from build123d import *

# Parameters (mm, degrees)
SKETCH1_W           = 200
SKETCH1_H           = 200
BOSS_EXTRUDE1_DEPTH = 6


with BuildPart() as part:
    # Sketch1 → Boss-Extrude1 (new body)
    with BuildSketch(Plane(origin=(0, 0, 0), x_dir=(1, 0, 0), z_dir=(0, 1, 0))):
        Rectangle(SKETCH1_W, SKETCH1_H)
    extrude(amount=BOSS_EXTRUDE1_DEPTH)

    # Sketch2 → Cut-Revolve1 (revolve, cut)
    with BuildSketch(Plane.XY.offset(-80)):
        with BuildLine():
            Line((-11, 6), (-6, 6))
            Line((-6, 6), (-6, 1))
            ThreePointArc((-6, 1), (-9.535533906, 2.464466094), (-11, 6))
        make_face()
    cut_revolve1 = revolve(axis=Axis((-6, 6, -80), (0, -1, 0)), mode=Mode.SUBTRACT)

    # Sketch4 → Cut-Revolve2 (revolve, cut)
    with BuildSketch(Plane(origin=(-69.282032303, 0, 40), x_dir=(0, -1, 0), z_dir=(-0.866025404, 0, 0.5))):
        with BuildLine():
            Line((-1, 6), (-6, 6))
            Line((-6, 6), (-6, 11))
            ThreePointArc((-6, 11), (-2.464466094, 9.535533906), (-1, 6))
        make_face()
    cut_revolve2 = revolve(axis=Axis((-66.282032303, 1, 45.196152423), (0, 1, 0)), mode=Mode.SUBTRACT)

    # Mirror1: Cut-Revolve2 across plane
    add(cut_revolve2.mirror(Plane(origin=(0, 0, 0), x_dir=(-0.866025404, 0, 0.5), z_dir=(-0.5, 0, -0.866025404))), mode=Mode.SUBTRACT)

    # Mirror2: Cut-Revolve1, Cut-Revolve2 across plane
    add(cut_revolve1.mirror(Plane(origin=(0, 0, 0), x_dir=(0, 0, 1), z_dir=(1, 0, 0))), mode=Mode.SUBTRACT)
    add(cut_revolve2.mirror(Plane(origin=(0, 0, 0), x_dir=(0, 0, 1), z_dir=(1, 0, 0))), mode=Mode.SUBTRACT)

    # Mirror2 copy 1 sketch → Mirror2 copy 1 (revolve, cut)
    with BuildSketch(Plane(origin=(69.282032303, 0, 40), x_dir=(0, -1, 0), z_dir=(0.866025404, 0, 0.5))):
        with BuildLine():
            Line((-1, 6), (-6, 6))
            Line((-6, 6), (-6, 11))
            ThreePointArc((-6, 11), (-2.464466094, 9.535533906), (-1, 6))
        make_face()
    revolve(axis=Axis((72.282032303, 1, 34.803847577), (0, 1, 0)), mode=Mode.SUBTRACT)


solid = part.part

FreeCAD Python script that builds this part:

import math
import FreeCAD as App
import Part
import Sketcher
Q = App.Units.Quantity

doc = App.newDocument("Part")
body = doc.addObject("PartDesign::Body", "Body")

# Sketch on XZ plane
sketch1 = body.newObject("Sketcher::SketchObject", "Sketch")
sketch1.AttachmentSupport = (doc.getObject("XZ_Plane"), [""])
sketch1.MapMode = "FlatFace"
sketch1.addGeometry(Part.LineSegment(App.Vector(-100, -100, 0), App.Vector(-100, 100, 0)), False)
sketch1.addGeometry(Part.LineSegment(App.Vector(-100, 100, 0), App.Vector(100, 100, 0)), False)
sketch1.addGeometry(Part.LineSegment(App.Vector(100, 100, 0), App.Vector(100, -100, 0)), False)
sketch1.addGeometry(Part.LineSegment(App.Vector(100, -100, 0), App.Vector(-100, -100, 0)), False)
sketch1.addConstraint(Sketcher.Constraint("Coincident", 0, 2, 1, 1))
sketch1.addConstraint(Sketcher.Constraint("Coincident", 1, 2, 2, 1))
sketch1.addConstraint(Sketcher.Constraint("Coincident", 2, 2, 3, 1))
sketch1.addConstraint(Sketcher.Constraint("Coincident", 3, 2, 0, 1))
sketch1.addConstraint(Sketcher.Constraint("Vertical", 0))
sketch1.addConstraint(Sketcher.Constraint("Horizontal", 1))
sketch1.addConstraint(Sketcher.Constraint("Vertical", 2))
sketch1.addConstraint(Sketcher.Constraint("Horizontal", 3))
sketch1.addConstraint(Sketcher.Constraint("Symmetric", 0, 2, 2, 2, -1, 1))
sketch1.addConstraint(Sketcher.Constraint("Equal", 3, 0))
sketch1.addConstraint(Sketcher.Constraint("DistanceX", 1, 1, 1, 2, Q("200 mm")))
pad1 = body.newObject("PartDesign::Pad", "Pad")
pad1.Profile = sketch1
pad1.Length = 6
pad1.Reversed = True

# Sketch on XY plane
sketch2 = body.newObject("Sketcher::SketchObject", "Sketch001")
sketch2.AttachmentSupport = (doc.getObject("XY_Plane"), [""])
sketch2.MapMode = "FlatFace"
sketch2.AttachmentOffset = App.Placement(App.Vector(0, 0, -80), App.Rotation())
sketch2.addGeometry(Part.LineSegment(App.Vector(-6, 6, 0), App.Vector(-11, 6, 0)), False)
sketch2.addGeometry(Part.ArcOfCircle(Part.Circle(App.Vector(-6, 6, 0), App.Vector(0, 0, 1), 5), math.radians(180), math.radians(270)), False)
sketch2.addGeometry(Part.LineSegment(App.Vector(-6, 1, 0), App.Vector(-6, 6, 0)), False)
sketch2.addGeometry(Part.LineSegment(App.Vector(-6, 6, 0), App.Vector(-6, 1, 0)), True)  # axis
sketch2.addConstraint(Sketcher.Constraint("Coincident", 0, 2, 1, 1))
sketch2.addConstraint(Sketcher.Constraint("Coincident", 1, 2, 2, 1))
sketch2.addConstraint(Sketcher.Constraint("Coincident", 2, 2, 0, 1))
sketch2.addConstraint(Sketcher.Constraint("Horizontal", 0))
sketch2.addConstraint(Sketcher.Constraint("Vertical", 2))
sketch2.addConstraint(Sketcher.Constraint("Vertical", 3))
sketch2.addConstraint(Sketcher.Constraint("Coincident", 2, 2, 1, 3))
sketch2.addConstraint(Sketcher.Constraint("Coincident", 3, 1, 1, 3))
sketch2.addConstraint(Sketcher.Constraint("Equal", 2, 3))
sketch2.addConstraint(Sketcher.Constraint("Radius", 1, Q("5 mm")))
sketch2.addConstraint(Sketcher.Constraint("DistanceX", 1, 3, -1, 1, Q("6 mm")))
sketch2.addConstraint(Sketcher.Constraint("DistanceY", -1, 1, 1, 3, Q("6 mm")))
groove = body.newObject("PartDesign::Groove", "Groove")
groove.Profile = sketch2
groove.ReferenceAxis = (sketch2, ["Axis0"])
groove.Angle = 360

# Sketch on an angled plane
sketch3 = body.newObject("Sketcher::SketchObject", "Sketch002")
sketch3.Placement = App.Placement(App.Vector(-69.282032, 0, 40), App.Rotation(App.Vector(0, -1, 0), App.Vector(0.5, 0, 0.866025404), App.Vector(-0.866025404, 0, 0.5), "ZXY"))
sketch3.addGeometry(Part.LineSegment(App.Vector(-6, 6, 0), App.Vector(-1, 6, 0)), False)
sketch3.addGeometry(Part.ArcOfCircle(Part.Circle(App.Vector(-6, 6, 0), App.Vector(0, 0, 1), 5), math.radians(0), math.radians(90)), False)
sketch3.addGeometry(Part.LineSegment(App.Vector(-6, 11, 0), App.Vector(-6, 6, 0)), False)
sketch3.addGeometry(Part.LineSegment(App.Vector(-1, 6, 0), App.Vector(-6, 6, 0)), True)  # axis
sketch3.addConstraint(Sketcher.Constraint("Coincident", 0, 2, 1, 1))
sketch3.addConstraint(Sketcher.Constraint("Coincident", 1, 2, 2, 1))
sketch3.addConstraint(Sketcher.Constraint("Coincident", 2, 2, 0, 1))
sketch3.addConstraint(Sketcher.Constraint("Horizontal", 0))
sketch3.addConstraint(Sketcher.Constraint("Vertical", 2))
sketch3.addConstraint(Sketcher.Constraint("Horizontal", 3))
sketch3.addConstraint(Sketcher.Constraint("Coincident", 2, 2, 1, 3))
sketch3.addConstraint(Sketcher.Constraint("Coincident", 3, 1, 0, 2))
sketch3.addConstraint(Sketcher.Constraint("Vertical", 1, 2, 3, 2))
sketch3.addConstraint(Sketcher.Constraint("Radius", 1, Q("5 mm")))
sketch3.addConstraint(Sketcher.Constraint("DistanceX", 1, 3, -1, 1, Q("6 mm")))
sketch3.addConstraint(Sketcher.Constraint("DistanceY", -1, 1, 1, 3, Q("6 mm")))
groove2 = body.newObject("PartDesign::Groove", "Groove001")
groove2.Profile = sketch3
groove2.ReferenceAxis = (sketch3, ["Axis0"])
groove2.Angle = 360
doc.recompute()

datumplane = body.newObject("PartDesign::Plane", "DatumPlane")
datumplane.Placement = App.Placement(App.Vector(0, 0, 0), App.Rotation(App.Vector(0.866025404, 0, -0.5), App.Vector(0, -1, 0), App.Vector(-0.5, 0, -0.866025404), "ZXY"))
mirrored = body.newObject("PartDesign::Mirrored", "Mirrored")
mirrored.Originals = [groove2]
mirrored.MirrorPlane = (datumplane, [""])
body.Tip = mirrored
doc.recompute()

mirrored2 = body.newObject("PartDesign::Mirrored", "Mirrored001")
mirrored2.Originals = [groove, groove2]
mirrored2.MirrorPlane = (doc.getObject("YZ_Plane"), [""])
body.Tip = mirrored2

# Sketch on an angled plane
sketch4 = body.newObject("Sketcher::SketchObject", "Sketch003")
sketch4.Placement = App.Placement(App.Vector(69.282032, 0, 40), App.Rotation(App.Vector(0, -1, 0), App.Vector(0.5, 0, -0.866025404), App.Vector(0.866025404, 0, 0.5), "ZXY"))
sketch4.addGeometry(Part.LineSegment(App.Vector(-6, 6, 0), App.Vector(-1, 6, 0)), False)
sketch4.addGeometry(Part.ArcOfCircle(Part.Circle(App.Vector(-6, 6, 0), App.Vector(0, 0, 1), 5), math.radians(0), math.radians(90)), False)
sketch4.addGeometry(Part.LineSegment(App.Vector(-6, 11, 0), App.Vector(-6, 6, 0)), False)
sketch4.addGeometry(Part.LineSegment(App.Vector(-1, 6, 0), App.Vector(-6, 6, 0)), True)  # axis
sketch4.addConstraint(Sketcher.Constraint("Coincident", 0, 2, 1, 1))
sketch4.addConstraint(Sketcher.Constraint("Coincident", 1, 2, 2, 1))
sketch4.addConstraint(Sketcher.Constraint("Coincident", 2, 2, 0, 1))
sketch4.addConstraint(Sketcher.Constraint("Horizontal", 0))
sketch4.addConstraint(Sketcher.Constraint("Vertical", 2))
sketch4.addConstraint(Sketcher.Constraint("Horizontal", 3))
sketch4.addConstraint(Sketcher.Constraint("Coincident", 2, 2, 1, 3))
sketch4.addConstraint(Sketcher.Constraint("Coincident", 3, 1, 0, 2))
sketch4.addConstraint(Sketcher.Constraint("Vertical", 1, 2, 3, 2))
sketch4.addConstraint(Sketcher.Constraint("Radius", 1, Q("5 mm")))
sketch4.addConstraint(Sketcher.Constraint("DistanceX", 1, 3, -1, 1, Q("6 mm")))
sketch4.addConstraint(Sketcher.Constraint("DistanceY", -1, 1, 1, 3, Q("6 mm")))
groove3 = body.newObject("PartDesign::Groove", "Groove002")
groove3.Profile = sketch4
groove3.ReferenceAxis = (sketch4, ["Axis0"])
groove3.Angle = 360

doc.recompute()
